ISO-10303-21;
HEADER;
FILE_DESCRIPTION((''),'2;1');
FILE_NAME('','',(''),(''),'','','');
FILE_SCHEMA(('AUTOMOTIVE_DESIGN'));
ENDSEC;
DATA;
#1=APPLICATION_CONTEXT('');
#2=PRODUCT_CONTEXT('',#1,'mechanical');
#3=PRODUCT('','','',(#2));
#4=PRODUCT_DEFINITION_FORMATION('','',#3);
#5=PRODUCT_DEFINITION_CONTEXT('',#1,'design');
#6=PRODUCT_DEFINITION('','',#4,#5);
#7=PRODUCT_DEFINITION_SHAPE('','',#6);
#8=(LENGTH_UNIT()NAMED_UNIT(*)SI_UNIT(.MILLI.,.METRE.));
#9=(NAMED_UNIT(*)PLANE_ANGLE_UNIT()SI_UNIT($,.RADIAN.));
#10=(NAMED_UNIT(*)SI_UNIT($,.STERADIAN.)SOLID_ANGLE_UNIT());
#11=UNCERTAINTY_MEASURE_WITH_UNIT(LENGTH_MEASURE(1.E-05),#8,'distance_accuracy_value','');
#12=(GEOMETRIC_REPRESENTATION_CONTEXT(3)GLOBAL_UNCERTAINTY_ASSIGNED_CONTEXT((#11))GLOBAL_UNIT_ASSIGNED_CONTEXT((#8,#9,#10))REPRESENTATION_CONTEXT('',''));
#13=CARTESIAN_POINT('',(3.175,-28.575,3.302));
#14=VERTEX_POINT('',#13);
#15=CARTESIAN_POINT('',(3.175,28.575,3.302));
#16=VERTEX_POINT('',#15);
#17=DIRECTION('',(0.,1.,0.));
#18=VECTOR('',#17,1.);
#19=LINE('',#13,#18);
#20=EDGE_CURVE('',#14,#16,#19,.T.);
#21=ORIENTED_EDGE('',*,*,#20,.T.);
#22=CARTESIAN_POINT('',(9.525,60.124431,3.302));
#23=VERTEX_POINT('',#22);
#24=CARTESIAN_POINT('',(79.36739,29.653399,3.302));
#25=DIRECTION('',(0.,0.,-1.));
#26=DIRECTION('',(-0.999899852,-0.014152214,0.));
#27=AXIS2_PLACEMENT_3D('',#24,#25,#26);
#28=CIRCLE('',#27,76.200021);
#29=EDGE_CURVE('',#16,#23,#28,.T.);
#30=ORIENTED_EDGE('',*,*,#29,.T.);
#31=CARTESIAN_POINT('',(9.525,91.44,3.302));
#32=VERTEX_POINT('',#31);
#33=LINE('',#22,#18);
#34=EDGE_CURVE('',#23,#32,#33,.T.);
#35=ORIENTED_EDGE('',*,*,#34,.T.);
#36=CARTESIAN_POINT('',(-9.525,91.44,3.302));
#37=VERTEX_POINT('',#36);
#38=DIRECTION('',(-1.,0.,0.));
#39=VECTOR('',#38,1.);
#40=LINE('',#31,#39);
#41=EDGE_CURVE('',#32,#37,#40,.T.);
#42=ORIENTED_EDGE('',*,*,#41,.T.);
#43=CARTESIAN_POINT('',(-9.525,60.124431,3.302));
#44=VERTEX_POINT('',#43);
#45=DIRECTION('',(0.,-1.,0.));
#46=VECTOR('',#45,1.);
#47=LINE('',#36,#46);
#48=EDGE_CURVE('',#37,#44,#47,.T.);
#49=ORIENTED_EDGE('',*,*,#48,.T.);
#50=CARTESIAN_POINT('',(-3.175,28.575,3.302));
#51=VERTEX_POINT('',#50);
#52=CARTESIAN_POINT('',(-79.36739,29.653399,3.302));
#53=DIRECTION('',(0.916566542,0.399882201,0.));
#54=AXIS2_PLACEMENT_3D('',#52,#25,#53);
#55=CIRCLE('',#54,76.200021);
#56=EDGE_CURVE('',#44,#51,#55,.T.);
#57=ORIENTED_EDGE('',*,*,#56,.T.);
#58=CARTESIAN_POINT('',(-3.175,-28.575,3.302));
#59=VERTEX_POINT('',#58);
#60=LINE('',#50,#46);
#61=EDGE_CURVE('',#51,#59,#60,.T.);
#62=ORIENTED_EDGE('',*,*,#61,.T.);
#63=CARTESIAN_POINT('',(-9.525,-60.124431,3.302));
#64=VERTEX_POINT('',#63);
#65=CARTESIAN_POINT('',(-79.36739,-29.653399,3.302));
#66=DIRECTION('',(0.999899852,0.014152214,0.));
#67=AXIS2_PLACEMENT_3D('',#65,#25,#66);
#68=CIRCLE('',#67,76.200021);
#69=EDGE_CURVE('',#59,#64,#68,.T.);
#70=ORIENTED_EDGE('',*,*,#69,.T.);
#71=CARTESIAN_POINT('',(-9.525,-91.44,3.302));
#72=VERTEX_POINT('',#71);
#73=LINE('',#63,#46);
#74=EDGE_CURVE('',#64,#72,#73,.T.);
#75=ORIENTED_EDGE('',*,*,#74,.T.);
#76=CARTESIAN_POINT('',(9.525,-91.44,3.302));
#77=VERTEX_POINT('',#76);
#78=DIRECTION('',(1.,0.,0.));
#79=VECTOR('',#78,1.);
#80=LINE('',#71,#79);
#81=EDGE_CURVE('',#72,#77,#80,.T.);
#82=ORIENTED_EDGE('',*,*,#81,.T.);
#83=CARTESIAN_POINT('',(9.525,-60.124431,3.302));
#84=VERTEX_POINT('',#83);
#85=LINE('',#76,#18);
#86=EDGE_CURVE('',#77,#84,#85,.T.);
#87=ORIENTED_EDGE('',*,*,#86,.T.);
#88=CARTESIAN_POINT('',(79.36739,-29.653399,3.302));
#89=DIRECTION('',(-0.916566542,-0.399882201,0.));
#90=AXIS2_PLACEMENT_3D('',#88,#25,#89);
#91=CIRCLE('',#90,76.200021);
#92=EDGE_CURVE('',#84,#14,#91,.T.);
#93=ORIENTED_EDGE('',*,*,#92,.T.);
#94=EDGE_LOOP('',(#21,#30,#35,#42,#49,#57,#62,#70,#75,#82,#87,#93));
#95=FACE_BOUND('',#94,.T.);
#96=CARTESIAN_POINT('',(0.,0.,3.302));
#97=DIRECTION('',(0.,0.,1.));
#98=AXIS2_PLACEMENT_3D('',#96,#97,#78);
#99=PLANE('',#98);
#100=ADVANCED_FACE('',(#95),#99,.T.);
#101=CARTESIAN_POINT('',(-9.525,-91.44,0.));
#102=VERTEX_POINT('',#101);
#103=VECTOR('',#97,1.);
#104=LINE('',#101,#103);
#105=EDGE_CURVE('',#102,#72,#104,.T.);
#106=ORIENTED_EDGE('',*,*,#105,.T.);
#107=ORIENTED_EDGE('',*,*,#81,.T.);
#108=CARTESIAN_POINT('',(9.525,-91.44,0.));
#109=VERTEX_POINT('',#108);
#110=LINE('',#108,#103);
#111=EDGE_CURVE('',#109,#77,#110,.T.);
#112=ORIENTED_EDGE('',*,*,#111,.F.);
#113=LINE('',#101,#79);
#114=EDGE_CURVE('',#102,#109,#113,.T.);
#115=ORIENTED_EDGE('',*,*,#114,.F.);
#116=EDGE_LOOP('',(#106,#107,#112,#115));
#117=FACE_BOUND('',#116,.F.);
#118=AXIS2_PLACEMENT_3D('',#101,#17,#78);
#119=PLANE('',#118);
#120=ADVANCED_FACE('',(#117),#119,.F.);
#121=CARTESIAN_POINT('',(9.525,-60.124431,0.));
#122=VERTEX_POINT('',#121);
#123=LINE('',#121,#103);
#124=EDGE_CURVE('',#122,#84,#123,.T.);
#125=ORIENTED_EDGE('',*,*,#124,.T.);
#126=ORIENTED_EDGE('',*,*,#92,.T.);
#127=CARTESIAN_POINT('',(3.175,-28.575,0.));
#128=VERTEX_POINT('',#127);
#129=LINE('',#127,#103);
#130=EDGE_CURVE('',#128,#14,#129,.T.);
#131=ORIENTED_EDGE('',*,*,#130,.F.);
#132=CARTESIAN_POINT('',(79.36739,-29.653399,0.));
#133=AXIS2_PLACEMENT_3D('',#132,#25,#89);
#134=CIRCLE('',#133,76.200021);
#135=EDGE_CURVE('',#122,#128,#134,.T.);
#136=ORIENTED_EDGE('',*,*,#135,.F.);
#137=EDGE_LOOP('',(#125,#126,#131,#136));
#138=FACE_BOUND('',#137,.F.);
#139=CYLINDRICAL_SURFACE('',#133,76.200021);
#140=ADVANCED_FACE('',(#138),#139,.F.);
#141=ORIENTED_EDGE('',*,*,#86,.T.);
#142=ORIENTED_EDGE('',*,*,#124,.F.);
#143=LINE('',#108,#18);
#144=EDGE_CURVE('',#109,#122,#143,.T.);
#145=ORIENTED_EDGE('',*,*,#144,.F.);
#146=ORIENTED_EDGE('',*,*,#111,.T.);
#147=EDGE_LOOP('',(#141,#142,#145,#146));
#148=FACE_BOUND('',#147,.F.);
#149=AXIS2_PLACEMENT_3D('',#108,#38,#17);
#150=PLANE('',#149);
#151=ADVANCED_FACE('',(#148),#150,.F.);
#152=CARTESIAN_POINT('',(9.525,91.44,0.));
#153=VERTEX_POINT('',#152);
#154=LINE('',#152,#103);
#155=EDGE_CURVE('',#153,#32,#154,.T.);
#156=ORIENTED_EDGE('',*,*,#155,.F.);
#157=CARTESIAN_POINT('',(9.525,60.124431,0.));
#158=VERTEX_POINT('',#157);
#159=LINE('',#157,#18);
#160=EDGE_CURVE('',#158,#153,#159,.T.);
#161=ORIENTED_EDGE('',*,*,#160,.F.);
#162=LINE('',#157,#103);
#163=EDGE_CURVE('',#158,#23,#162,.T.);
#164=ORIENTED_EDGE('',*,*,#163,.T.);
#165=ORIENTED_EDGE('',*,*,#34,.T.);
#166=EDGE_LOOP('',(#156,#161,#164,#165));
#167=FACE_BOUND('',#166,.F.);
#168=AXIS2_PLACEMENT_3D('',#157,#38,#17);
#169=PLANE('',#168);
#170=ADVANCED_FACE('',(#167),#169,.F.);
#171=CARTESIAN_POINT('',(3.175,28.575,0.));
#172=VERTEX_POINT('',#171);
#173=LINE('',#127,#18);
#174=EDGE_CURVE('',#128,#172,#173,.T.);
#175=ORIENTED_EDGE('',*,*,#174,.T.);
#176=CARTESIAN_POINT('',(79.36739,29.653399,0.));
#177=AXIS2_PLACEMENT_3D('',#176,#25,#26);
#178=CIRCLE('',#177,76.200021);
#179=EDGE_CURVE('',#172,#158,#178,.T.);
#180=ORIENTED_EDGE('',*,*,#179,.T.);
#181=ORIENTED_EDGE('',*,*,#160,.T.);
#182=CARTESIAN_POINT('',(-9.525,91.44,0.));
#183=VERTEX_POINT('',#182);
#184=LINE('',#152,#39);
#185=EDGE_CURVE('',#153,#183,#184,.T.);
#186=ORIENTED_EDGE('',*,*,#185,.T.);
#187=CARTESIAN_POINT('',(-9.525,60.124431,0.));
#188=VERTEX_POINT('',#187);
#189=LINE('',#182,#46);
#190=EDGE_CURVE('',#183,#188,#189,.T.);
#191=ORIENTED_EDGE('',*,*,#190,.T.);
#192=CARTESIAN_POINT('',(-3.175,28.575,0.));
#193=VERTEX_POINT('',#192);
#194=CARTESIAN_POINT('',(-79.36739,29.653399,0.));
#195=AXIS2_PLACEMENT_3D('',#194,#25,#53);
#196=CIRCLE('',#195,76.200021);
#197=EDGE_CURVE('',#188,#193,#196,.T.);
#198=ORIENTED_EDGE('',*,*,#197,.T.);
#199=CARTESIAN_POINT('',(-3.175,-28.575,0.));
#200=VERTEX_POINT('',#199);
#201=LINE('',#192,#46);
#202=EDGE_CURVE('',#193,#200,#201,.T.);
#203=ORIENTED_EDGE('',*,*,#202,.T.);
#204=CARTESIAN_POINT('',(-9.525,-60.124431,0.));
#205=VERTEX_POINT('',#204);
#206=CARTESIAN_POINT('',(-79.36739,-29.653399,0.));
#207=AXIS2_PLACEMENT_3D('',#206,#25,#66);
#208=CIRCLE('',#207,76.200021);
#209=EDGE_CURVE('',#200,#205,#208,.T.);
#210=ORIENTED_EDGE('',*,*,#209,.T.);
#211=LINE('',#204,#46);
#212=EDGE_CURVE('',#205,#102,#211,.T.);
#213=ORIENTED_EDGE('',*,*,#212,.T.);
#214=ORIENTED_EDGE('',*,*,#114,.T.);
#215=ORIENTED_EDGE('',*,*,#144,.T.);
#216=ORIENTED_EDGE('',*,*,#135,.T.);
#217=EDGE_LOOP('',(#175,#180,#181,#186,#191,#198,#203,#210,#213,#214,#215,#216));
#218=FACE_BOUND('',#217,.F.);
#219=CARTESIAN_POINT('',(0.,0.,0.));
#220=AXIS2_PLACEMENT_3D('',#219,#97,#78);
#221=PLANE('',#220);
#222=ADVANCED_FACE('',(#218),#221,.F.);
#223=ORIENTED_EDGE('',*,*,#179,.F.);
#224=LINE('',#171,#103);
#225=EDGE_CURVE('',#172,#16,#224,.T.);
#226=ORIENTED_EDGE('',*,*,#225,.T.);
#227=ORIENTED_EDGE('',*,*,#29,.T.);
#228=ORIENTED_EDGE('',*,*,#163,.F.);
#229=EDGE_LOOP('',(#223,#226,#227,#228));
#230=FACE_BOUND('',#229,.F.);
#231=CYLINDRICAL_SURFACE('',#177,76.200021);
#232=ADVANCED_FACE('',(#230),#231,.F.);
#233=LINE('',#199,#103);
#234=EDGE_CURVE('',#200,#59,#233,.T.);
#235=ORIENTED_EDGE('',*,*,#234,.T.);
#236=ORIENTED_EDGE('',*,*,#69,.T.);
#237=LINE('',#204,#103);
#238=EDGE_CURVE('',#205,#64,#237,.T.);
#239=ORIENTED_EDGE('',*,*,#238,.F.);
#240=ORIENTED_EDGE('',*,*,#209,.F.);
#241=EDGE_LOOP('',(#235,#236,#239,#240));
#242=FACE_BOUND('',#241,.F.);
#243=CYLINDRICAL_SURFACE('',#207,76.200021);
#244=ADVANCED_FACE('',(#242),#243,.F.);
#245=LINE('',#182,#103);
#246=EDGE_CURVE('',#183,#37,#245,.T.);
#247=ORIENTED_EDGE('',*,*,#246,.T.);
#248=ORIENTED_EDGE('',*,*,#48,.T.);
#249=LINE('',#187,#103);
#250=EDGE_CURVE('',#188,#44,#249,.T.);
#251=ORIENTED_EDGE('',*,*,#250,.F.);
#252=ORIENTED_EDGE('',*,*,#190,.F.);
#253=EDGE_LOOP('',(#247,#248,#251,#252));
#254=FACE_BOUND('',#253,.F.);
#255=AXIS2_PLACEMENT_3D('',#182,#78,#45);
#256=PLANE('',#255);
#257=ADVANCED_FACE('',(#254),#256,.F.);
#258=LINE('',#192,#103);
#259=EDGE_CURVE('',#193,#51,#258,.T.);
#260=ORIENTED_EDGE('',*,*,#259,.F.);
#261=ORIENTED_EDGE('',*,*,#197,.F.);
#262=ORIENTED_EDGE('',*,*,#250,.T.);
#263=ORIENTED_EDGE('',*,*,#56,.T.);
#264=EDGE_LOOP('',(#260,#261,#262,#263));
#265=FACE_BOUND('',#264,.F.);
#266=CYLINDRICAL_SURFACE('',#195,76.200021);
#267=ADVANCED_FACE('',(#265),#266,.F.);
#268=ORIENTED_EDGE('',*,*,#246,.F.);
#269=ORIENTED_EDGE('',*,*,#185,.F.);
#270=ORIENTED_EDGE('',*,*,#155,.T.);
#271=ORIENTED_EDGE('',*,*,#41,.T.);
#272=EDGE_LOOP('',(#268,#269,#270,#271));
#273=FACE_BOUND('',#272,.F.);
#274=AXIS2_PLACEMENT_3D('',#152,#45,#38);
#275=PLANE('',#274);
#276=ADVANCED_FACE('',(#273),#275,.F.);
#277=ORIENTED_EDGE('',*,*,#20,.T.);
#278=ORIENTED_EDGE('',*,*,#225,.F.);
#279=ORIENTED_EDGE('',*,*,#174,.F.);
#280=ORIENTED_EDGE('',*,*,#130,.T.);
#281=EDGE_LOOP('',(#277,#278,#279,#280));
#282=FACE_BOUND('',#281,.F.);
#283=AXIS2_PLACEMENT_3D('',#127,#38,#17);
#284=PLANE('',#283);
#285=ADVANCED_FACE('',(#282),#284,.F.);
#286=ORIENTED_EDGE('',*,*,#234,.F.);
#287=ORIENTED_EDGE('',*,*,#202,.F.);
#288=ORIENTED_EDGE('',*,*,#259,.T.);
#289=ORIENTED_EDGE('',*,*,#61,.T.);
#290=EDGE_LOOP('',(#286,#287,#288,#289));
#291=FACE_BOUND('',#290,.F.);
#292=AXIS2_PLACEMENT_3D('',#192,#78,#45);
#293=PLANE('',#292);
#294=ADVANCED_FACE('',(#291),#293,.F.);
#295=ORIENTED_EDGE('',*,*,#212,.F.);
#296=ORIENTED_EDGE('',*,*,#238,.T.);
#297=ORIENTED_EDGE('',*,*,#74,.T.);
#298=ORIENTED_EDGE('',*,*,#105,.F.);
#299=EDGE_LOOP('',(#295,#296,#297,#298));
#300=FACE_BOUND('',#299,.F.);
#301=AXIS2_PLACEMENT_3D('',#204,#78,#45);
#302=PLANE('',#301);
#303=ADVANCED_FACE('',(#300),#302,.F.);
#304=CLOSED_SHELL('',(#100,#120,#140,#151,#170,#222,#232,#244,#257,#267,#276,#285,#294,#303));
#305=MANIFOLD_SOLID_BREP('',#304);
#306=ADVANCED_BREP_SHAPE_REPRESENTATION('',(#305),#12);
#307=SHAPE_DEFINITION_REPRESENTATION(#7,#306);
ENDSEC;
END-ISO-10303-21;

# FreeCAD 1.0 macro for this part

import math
import FreeCAD as App
import Part
import Sketcher

V = App.Vector
Q = App.Units.Quantity

doc = App.newDocument("Part")
body = doc.addObject("PartDesign::Body", "Body")

# Sketch on XY plane
sketch1 = body.newObject("Sketcher::SketchObject", "Sketch")
sketch1.AttachmentSupport = (doc.getObject("XY_Plane"), [""])
sketch1.MapMode = "FlatFace"
sketch1.addGeometry([
    Part.LineSegment(V(-3, 29, 0), V(-3, -29, 0)),  # 0
    Part.ArcOfCircle(Part.Circle(V(-79, -30, 0), V(0, 0, 1), 76), math.radians(-24), math.radians(1)),  # 1
    Part.LineSegment(V(-10, -60, 0), V(-10, -91, 0)),  # 2
    Part.LineSegment(V(-10, -91, 0), V(10, -91, 0)),  # 3
    Part.LineSegment(V(10, -91, 0), V(10, -60, 0)),  # 4
    Part.ArcOfCircle(Part.Circle(V(79, -30, 0), V(0, 0, 1), 76), math.radians(179), math.radians(204)),  # 5
    Part.LineSegment(V(3, -29, 0), V(3, 29, 0)),  # 6
    Part.ArcOfCircle(Part.Circle(V(79, 30, 0), V(0, 0, 1), 76), math.radians(156), math.radians(181)),  # 7
    Part.LineSegment(V(10, 60, 0), V(10, 91, 0)),  # 8
    Part.LineSegment(V(10, 91, 0), V(-10, 91, 0)),  # 9
    Part.LineSegment(V(-10, 91, 0), V(-10, 60, 0)),  # 10
    Part.ArcOfCircle(Part.Circle(V(-79, 30, 0), V(0, 0, 1), 76), math.radians(-1), math.radians(24)),  # 11
], False)
sketch1.addConstraint([
    Sketcher.Constraint("Coincident", 0, 2, 1, 2),
    Sketcher.Constraint("Coincident", 1, 1, 2, 1),
    Sketcher.Constraint("Coincident", 2, 2, 3, 1),
    Sketcher.Constraint("Coincident", 3, 2, 4, 1),
    Sketcher.Constraint("Coincident", 4, 2, 5, 2),
    Sketcher.Constraint("Coincident", 5, 1, 6, 1),
    Sketcher.Constraint("Coincident", 6, 2, 7, 2),
    Sketcher.Constraint("Coincident", 7, 1, 8, 1),
    Sketcher.Constraint("Coincident", 8, 2, 9, 1),
    Sketcher.Constraint("Coincident", 9, 2, 10, 1),
    Sketcher.Constraint("Coincident", 10, 2, 11, 2),
    Sketcher.Constraint("Coincident", 11, 1, 0, 1),
    Sketcher.Constraint("Vertical", 0),
    Sketcher.Constraint("Vertical", 2),
    Sketcher.Constraint("Horizontal", 3),
    Sketcher.Constraint("Vertical", 4),
    Sketcher.Constraint("Vertical", 6),
    Sketcher.Constraint("Vertical", 8),
    Sketcher.Constraint("Horizontal", 9),
    Sketcher.Constraint("Vertical", 10),
    Sketcher.Constraint("Equal", 1, 5),
    Sketcher.Constraint("Equal", 5, 7),
    Sketcher.Constraint("Equal", 7, 11),
    Sketcher.Constraint("Symmetric", 1, 3, 7, 3, -1, 1),
    Sketcher.Constraint("Symmetric", 5, 3, 11, 3, -1, 1),
    Sketcher.Constraint("Symmetric", 2, 2, 8, 2, -1, 1),
    Sketcher.Constraint("Symmetric", 1, 3, 5, 3, -2),
    Sketcher.Constraint("Horizontal", 1, 1, 4, 2),
    Sketcher.Constraint("Horizontal", 0, 2, 5, 1),
    Sketcher.Constraint("Horizontal", 7, 1, 10, 2),
    Sketcher.Constraint("DistanceX", 3, 1, 3, 2, Q("0.75 in")),
    Sketcher.Constraint("DistanceY", 0, 2, 0, 1, Q("2.25 in")),
    Sketcher.Constraint("DistanceY", 2, 2, -1, 1, Q("3.6 in")),
    Sketcher.Constraint("DistanceX", 0, 2, 3, 2, Q("0.5 in")),
    Sketcher.Constraint("Radius", 1, Q("76.200021 mm")),
    Sketcher.Constraint("DistanceY", 2, 2, 2, 1, Q("31.315569 mm")),
])
pad1 = body.newObject("PartDesign::Pad", "Pad")
pad1.Profile = sketch1
pad1.Length = Q("0.13 in")

doc.recompute()
